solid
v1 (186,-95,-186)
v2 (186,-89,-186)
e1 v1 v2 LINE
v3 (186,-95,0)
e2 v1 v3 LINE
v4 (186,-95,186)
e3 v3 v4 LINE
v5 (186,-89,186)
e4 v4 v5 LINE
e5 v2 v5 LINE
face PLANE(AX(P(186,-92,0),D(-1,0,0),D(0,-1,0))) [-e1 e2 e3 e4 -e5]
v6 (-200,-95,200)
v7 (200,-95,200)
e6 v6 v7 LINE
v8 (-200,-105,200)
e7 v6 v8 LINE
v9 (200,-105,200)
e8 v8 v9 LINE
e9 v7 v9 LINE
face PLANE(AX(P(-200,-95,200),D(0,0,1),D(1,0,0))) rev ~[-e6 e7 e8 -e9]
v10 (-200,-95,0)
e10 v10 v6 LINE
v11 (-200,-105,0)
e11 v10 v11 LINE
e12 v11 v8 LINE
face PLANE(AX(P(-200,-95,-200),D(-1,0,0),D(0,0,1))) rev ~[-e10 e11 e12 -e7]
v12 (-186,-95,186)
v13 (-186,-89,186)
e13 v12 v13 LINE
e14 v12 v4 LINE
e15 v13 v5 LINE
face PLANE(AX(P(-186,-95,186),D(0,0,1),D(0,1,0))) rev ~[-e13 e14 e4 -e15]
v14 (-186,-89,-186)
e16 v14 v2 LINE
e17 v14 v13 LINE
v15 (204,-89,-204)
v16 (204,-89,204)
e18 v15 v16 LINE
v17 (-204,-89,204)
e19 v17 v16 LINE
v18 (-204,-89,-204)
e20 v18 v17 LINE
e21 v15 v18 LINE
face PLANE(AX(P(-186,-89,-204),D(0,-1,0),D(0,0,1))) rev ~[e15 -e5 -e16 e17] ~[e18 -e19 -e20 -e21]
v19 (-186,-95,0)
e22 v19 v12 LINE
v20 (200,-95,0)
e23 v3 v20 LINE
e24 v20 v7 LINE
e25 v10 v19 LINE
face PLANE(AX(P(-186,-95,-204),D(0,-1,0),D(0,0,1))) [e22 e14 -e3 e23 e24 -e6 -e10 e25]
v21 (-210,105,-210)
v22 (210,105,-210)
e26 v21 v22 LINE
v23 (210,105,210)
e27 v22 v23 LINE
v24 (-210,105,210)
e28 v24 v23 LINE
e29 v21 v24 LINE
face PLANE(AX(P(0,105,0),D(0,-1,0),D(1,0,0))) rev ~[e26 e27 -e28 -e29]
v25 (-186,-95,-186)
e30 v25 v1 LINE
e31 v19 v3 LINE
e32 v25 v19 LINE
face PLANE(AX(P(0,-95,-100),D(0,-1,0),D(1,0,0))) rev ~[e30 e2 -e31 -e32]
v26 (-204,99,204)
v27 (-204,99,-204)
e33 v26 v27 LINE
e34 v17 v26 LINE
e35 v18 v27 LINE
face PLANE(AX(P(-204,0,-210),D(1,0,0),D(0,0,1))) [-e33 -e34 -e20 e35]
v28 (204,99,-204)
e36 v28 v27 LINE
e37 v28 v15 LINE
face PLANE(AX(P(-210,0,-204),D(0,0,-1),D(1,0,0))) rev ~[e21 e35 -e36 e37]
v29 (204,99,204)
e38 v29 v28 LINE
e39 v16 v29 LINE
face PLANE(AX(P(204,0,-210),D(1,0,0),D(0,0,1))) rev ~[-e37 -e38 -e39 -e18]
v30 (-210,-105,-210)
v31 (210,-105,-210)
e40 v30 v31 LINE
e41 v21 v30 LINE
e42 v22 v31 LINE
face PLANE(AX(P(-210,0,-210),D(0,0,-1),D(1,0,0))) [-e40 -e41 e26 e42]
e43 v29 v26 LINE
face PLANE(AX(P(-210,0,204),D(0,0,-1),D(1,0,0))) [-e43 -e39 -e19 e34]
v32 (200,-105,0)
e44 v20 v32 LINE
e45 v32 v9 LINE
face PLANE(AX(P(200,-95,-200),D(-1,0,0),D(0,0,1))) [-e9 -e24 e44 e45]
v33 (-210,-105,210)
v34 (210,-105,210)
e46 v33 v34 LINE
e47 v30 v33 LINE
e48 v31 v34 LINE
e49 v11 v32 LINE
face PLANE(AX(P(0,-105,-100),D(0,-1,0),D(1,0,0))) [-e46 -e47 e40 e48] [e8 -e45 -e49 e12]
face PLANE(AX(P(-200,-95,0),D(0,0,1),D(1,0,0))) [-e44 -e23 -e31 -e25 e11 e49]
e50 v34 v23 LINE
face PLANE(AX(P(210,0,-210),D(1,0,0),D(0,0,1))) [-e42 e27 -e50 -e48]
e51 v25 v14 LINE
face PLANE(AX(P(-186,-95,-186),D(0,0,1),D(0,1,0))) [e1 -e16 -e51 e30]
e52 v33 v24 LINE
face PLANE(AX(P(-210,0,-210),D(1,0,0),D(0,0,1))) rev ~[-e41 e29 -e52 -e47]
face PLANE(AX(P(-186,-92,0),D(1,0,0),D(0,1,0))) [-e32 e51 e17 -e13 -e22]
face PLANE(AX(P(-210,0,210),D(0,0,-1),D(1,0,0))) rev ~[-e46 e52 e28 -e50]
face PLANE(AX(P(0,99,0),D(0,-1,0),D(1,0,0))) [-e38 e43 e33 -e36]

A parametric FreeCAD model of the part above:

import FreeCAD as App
import Part
import Sketcher
from FreeCAD import Vector


def faces_at(feature, points):
    """Names of the faces that lie closest to the given points."""
    faces = feature.Shape.Faces
    near = lambda p: min(range(len(faces)), key=lambda i: faces[i].distToShape(Part.Vertex(*p))[0])
    return sorted({f"Face{near(p) + 1}" for p in points})


def add_polygon(sketch, points):
    """Adds a closed chain of lines whose ends are joined by coincident constraints."""
    first, n = sketch.GeometryCount, len(points)
    for a, b in zip(points, points[1:] + points[:1]):
        sketch.addGeometry(Part.LineSegment(App.Vector(*a, 0), App.Vector(*b, 0)), False)
    for i in range(n):
        sketch.addConstraint(Sketcher.Constraint("Coincident", first + i, 2, first + (i + 1) % n, 1))

doc = App.newDocument("Part")
body = doc.addObject("PartDesign::Body", "Body")

sketch1 = body.newObject("Sketcher::SketchObject", "Sketch")
sketch1.AttachmentSupport = (doc.getObject("XZ_Plane"), [""])
sketch1.MapMode = "FlatFace"
add_polygon(sketch1, [(-210, 210), (-210, -210), (210, -210), (210, 210)])
sketch1.addConstraint([
    Sketcher.Constraint("Vertical", 0),
    Sketcher.Constraint("Horizontal", 1),
    Sketcher.Constraint("Vertical", 2),
    Sketcher.Constraint("Horizontal", 3),
    Sketcher.Constraint("Symmetric", 0, 2, 2, 2, -1, 1),
    Sketcher.Constraint("Equal", 3, 0),
    Sketcher.Constraint("DistanceX", 1, 1, 1, 2, 420.0),
])
pad1 = body.newObject("PartDesign::Pad", "Pad")
pad1.Profile = sketch1
pad1.Length = 210
pad1.Midplane = True
doc.recompute()

thickness = body.newObject("PartDesign::Thickness", "Thickness")
thickness.Base = (pad1, faces_at(pad1, [(0, -105, 0)]))
thickness.Value = 6
thickness.Reversed = True
thickness.Join = "Arc"

sketch2 = body.newObject("Sketcher::SketchObject", "Sketch001")
sketch2.AttachmentSupport = (doc.getObject("YZ_Plane"), [""])
sketch2.MapMode = "FlatFace"
sketch2.AttachmentOffset = App.Placement(Vector(0, 0, -204), App.Rotation())
add_polygon(sketch2, [(-95, 204), (-95, -204), (-89, -204), (-89, 204)])
sketch2.addConstraint([
    Sketcher.Constraint("Vertical", 0),
    Sketcher.Constraint("Horizontal", 1),
    Sketcher.Constraint("Vertical", 2),
    Sketcher.Constraint("Horizontal", 3),
    Sketcher.Constraint("DistanceX", 1, 1, 1, 2, 6.0),
    Sketcher.Constraint("DistanceY", 0, 2, 0, 1, 408.0),
    Sketcher.Constraint("DistanceX", 0, 2, -1, 1, 95.0),
    Sketcher.Constraint("DistanceY", 0, 2, -1, 1, 204.0),
])
pad2 = body.newObject("PartDesign::Pad", "Pad001")
pad2.Profile = sketch2
pad2.Length = 18

sketch3 = body.newObject("Sketcher::SketchObject", "Sketch002")
sketch3.AttachmentSupport = (doc.getObject("YZ_Plane"), [""])
sketch3.MapMode = "FlatFace"
sketch3.AttachmentOffset = App.Placement(Vector(0, 0, 204), App.Rotation())
add_polygon(sketch3, [(-89, 204), (-89, -204), (-95, -204), (-95, 204)])
sketch3.addConstraint([
    Sketcher.Constraint("Vertical", 0),
    Sketcher.Constraint("Horizontal", 1),
    Sketcher.Constraint("Vertical", 2),
    Sketcher.Constraint("Horizontal", 3),
    Sketcher.Constraint("DistanceX", 1, 2, 1, 1, 6.0),
    Sketcher.Constraint("DistanceY", 0, 2, 0, 1, 408.0),
    Sketcher.Constraint("DistanceX", 0, 2, -1, 1, 89.0),
    Sketcher.Constraint("DistanceY", 0, 2, -1, 1, 204.0),
])
pad3 = body.newObject("PartDesign::Pad", "Pad002")
pad3.Profile = sketch3
pad3.Length = 18
pad3.Reversed = True

sketch4 = body.newObject("Sketcher::SketchObject", "Sketch003")
sketch4.AttachmentSupport = (doc.getObject("YZ_Plane"), [""])
sketch4.MapMode = "FlatFace"
sketch4.AttachmentOffset = App.Placement(Vector(0, 0, -186), App.Rotation())
add_polygon(sketch4, [(-95, 204), (-95, 186), (-89, 186), (-89, 204)])
sketch4.addConstraint([
    Sketcher.Constraint("Vertical", 0),
    Sketcher.Constraint("Horizontal", 1),
    Sketcher.Constraint("Vertical", 2),
    Sketcher.Constraint("Horizontal", 3),
    Sketcher.Constraint("DistanceX", 1, 1, 1, 2, 6.0),
    Sketcher.Constraint("DistanceY", 0, 2, 0, 1, 18.0),
    Sketcher.Constraint("DistanceX", 0, 2, -1, 1, 95.0),
    Sketcher.Constraint("DistanceY", -1, 1, 0, 2, 186.0),
])
pad4 = body.newObject("PartDesign::Pad", "Pad003")
pad4.Profile = sketch4
pad4.Type = "UpToLast"

sketch5 = body.newObject("Sketcher::SketchObject", "Sketch004")
sketch5.AttachmentSupport = (doc.getObject("YZ_Plane"), [""])
sketch5.MapMode = "FlatFace"
sketch5.AttachmentOffset = App.Placement(Vector(0, 0, -186), App.Rotation())
add_polygon(sketch5, [(-95, -186), (-95, -204), (-89, -204), (-89, -186)])
sketch5.addConstraint([
    Sketcher.Constraint("Vertical", 0),
    Sketcher.Constraint("Horizontal", 1),
    Sketcher.Constraint("Vertical", 2),
    Sketcher.Constraint("Horizontal", 3),
    Sketcher.Constraint("DistanceX", 1, 1, 1, 2, 6.0),
    Sketcher.Constraint("DistanceY", 0, 2, 0, 1, 18.0),
    Sketcher.Constraint("DistanceX", 0, 2, -1, 1, 95.0),
    Sketcher.Constraint("DistanceY", 0, 2, -1, 1, 204.0),
])
pad5 = body.newObject("PartDesign::Pad", "Pad004")
pad5.Profile = sketch5
pad5.Type = "UpToLast"

sketch6 = body.newObject("Sketcher::SketchObject", "Sketch005")
sketch6.AttachmentSupport = (doc.getObject("XZ_Plane"), [""])
sketch6.MapMode = "FlatFace"
sketch6.AttachmentOffset = App.Placement(Vector(0, 0, 95), App.Rotation())
add_polygon(sketch6, [(-204, 204), (-204, -204), (204, -204), (204, 204)])
add_polygon(sketch6, [(200, -200), (-200, -200), (-200, 200), (200, 200)])
sketch6.addConstraint([
    Sketcher.Constraint("Vertical", 0),
    Sketcher.Constraint("Horizontal", 1),
    Sketcher.Constraint("Vertical", 2),
    Sketcher.Constraint("Horizontal", 3),
    Sketcher.Constraint("Horizontal", 4),
    Sketcher.Constraint("Vertical", 5),
    Sketcher.Constraint("Horizontal", 6),
    Sketcher.Constraint("Vertical", 7),
    Sketcher.Constraint("Symmetric", 0, 2, 2, 2, -1, 1),
    Sketcher.Constraint("Symmetric", 4, 2, 6, 2, -1, 1),
    Sketcher.Constraint("Equal", 3, 0),
    Sketcher.Constraint("Equal", 6, 5),
    Sketcher.Constraint("DistanceX", 1, 1, 1, 2, 408.0),
    Sketcher.Constraint("DistanceX", 4, 2, 4, 1, 400.0),
])
pad6 = body.newObject("PartDesign::Pad", "Pad005")
pad6.Profile = sketch6
pad6.Length = 10

sketch7 = body.newObject("Sketcher::SketchObject", "Sketch006")
sketch7.AttachmentSupport = (doc.getObject("XZ_Plane"), [""])
sketch7.MapMode = "FlatFace"
sketch7.AttachmentOffset = App.Placement(Vector(0, 0, 95), App.Rotation())
add_polygon(sketch7, [(-200, 0), (-200, -200), (200, -200), (200, 0)])
sketch7.addConstraint([
    Sketcher.Constraint("Vertical", 0),
    Sketcher.Constraint("Horizontal", 1),
    Sketcher.Constraint("Vertical", 2),
    Sketcher.Constraint("Horizontal", 3),
    Sketcher.Constraint("Symmetric", 2, 2, 3, 2, -1, 1),
    Sketcher.Constraint("DistanceX", 1, 1, 1, 2, 400.0),
    Sketcher.Constraint("DistanceY", 0, 2, 0, 1, 200.0),
])
pad7 = body.newObject("PartDesign::Pad", "Pad006")
pad7.Profile = sketch7
pad7.Length = 10

doc.recompute()
